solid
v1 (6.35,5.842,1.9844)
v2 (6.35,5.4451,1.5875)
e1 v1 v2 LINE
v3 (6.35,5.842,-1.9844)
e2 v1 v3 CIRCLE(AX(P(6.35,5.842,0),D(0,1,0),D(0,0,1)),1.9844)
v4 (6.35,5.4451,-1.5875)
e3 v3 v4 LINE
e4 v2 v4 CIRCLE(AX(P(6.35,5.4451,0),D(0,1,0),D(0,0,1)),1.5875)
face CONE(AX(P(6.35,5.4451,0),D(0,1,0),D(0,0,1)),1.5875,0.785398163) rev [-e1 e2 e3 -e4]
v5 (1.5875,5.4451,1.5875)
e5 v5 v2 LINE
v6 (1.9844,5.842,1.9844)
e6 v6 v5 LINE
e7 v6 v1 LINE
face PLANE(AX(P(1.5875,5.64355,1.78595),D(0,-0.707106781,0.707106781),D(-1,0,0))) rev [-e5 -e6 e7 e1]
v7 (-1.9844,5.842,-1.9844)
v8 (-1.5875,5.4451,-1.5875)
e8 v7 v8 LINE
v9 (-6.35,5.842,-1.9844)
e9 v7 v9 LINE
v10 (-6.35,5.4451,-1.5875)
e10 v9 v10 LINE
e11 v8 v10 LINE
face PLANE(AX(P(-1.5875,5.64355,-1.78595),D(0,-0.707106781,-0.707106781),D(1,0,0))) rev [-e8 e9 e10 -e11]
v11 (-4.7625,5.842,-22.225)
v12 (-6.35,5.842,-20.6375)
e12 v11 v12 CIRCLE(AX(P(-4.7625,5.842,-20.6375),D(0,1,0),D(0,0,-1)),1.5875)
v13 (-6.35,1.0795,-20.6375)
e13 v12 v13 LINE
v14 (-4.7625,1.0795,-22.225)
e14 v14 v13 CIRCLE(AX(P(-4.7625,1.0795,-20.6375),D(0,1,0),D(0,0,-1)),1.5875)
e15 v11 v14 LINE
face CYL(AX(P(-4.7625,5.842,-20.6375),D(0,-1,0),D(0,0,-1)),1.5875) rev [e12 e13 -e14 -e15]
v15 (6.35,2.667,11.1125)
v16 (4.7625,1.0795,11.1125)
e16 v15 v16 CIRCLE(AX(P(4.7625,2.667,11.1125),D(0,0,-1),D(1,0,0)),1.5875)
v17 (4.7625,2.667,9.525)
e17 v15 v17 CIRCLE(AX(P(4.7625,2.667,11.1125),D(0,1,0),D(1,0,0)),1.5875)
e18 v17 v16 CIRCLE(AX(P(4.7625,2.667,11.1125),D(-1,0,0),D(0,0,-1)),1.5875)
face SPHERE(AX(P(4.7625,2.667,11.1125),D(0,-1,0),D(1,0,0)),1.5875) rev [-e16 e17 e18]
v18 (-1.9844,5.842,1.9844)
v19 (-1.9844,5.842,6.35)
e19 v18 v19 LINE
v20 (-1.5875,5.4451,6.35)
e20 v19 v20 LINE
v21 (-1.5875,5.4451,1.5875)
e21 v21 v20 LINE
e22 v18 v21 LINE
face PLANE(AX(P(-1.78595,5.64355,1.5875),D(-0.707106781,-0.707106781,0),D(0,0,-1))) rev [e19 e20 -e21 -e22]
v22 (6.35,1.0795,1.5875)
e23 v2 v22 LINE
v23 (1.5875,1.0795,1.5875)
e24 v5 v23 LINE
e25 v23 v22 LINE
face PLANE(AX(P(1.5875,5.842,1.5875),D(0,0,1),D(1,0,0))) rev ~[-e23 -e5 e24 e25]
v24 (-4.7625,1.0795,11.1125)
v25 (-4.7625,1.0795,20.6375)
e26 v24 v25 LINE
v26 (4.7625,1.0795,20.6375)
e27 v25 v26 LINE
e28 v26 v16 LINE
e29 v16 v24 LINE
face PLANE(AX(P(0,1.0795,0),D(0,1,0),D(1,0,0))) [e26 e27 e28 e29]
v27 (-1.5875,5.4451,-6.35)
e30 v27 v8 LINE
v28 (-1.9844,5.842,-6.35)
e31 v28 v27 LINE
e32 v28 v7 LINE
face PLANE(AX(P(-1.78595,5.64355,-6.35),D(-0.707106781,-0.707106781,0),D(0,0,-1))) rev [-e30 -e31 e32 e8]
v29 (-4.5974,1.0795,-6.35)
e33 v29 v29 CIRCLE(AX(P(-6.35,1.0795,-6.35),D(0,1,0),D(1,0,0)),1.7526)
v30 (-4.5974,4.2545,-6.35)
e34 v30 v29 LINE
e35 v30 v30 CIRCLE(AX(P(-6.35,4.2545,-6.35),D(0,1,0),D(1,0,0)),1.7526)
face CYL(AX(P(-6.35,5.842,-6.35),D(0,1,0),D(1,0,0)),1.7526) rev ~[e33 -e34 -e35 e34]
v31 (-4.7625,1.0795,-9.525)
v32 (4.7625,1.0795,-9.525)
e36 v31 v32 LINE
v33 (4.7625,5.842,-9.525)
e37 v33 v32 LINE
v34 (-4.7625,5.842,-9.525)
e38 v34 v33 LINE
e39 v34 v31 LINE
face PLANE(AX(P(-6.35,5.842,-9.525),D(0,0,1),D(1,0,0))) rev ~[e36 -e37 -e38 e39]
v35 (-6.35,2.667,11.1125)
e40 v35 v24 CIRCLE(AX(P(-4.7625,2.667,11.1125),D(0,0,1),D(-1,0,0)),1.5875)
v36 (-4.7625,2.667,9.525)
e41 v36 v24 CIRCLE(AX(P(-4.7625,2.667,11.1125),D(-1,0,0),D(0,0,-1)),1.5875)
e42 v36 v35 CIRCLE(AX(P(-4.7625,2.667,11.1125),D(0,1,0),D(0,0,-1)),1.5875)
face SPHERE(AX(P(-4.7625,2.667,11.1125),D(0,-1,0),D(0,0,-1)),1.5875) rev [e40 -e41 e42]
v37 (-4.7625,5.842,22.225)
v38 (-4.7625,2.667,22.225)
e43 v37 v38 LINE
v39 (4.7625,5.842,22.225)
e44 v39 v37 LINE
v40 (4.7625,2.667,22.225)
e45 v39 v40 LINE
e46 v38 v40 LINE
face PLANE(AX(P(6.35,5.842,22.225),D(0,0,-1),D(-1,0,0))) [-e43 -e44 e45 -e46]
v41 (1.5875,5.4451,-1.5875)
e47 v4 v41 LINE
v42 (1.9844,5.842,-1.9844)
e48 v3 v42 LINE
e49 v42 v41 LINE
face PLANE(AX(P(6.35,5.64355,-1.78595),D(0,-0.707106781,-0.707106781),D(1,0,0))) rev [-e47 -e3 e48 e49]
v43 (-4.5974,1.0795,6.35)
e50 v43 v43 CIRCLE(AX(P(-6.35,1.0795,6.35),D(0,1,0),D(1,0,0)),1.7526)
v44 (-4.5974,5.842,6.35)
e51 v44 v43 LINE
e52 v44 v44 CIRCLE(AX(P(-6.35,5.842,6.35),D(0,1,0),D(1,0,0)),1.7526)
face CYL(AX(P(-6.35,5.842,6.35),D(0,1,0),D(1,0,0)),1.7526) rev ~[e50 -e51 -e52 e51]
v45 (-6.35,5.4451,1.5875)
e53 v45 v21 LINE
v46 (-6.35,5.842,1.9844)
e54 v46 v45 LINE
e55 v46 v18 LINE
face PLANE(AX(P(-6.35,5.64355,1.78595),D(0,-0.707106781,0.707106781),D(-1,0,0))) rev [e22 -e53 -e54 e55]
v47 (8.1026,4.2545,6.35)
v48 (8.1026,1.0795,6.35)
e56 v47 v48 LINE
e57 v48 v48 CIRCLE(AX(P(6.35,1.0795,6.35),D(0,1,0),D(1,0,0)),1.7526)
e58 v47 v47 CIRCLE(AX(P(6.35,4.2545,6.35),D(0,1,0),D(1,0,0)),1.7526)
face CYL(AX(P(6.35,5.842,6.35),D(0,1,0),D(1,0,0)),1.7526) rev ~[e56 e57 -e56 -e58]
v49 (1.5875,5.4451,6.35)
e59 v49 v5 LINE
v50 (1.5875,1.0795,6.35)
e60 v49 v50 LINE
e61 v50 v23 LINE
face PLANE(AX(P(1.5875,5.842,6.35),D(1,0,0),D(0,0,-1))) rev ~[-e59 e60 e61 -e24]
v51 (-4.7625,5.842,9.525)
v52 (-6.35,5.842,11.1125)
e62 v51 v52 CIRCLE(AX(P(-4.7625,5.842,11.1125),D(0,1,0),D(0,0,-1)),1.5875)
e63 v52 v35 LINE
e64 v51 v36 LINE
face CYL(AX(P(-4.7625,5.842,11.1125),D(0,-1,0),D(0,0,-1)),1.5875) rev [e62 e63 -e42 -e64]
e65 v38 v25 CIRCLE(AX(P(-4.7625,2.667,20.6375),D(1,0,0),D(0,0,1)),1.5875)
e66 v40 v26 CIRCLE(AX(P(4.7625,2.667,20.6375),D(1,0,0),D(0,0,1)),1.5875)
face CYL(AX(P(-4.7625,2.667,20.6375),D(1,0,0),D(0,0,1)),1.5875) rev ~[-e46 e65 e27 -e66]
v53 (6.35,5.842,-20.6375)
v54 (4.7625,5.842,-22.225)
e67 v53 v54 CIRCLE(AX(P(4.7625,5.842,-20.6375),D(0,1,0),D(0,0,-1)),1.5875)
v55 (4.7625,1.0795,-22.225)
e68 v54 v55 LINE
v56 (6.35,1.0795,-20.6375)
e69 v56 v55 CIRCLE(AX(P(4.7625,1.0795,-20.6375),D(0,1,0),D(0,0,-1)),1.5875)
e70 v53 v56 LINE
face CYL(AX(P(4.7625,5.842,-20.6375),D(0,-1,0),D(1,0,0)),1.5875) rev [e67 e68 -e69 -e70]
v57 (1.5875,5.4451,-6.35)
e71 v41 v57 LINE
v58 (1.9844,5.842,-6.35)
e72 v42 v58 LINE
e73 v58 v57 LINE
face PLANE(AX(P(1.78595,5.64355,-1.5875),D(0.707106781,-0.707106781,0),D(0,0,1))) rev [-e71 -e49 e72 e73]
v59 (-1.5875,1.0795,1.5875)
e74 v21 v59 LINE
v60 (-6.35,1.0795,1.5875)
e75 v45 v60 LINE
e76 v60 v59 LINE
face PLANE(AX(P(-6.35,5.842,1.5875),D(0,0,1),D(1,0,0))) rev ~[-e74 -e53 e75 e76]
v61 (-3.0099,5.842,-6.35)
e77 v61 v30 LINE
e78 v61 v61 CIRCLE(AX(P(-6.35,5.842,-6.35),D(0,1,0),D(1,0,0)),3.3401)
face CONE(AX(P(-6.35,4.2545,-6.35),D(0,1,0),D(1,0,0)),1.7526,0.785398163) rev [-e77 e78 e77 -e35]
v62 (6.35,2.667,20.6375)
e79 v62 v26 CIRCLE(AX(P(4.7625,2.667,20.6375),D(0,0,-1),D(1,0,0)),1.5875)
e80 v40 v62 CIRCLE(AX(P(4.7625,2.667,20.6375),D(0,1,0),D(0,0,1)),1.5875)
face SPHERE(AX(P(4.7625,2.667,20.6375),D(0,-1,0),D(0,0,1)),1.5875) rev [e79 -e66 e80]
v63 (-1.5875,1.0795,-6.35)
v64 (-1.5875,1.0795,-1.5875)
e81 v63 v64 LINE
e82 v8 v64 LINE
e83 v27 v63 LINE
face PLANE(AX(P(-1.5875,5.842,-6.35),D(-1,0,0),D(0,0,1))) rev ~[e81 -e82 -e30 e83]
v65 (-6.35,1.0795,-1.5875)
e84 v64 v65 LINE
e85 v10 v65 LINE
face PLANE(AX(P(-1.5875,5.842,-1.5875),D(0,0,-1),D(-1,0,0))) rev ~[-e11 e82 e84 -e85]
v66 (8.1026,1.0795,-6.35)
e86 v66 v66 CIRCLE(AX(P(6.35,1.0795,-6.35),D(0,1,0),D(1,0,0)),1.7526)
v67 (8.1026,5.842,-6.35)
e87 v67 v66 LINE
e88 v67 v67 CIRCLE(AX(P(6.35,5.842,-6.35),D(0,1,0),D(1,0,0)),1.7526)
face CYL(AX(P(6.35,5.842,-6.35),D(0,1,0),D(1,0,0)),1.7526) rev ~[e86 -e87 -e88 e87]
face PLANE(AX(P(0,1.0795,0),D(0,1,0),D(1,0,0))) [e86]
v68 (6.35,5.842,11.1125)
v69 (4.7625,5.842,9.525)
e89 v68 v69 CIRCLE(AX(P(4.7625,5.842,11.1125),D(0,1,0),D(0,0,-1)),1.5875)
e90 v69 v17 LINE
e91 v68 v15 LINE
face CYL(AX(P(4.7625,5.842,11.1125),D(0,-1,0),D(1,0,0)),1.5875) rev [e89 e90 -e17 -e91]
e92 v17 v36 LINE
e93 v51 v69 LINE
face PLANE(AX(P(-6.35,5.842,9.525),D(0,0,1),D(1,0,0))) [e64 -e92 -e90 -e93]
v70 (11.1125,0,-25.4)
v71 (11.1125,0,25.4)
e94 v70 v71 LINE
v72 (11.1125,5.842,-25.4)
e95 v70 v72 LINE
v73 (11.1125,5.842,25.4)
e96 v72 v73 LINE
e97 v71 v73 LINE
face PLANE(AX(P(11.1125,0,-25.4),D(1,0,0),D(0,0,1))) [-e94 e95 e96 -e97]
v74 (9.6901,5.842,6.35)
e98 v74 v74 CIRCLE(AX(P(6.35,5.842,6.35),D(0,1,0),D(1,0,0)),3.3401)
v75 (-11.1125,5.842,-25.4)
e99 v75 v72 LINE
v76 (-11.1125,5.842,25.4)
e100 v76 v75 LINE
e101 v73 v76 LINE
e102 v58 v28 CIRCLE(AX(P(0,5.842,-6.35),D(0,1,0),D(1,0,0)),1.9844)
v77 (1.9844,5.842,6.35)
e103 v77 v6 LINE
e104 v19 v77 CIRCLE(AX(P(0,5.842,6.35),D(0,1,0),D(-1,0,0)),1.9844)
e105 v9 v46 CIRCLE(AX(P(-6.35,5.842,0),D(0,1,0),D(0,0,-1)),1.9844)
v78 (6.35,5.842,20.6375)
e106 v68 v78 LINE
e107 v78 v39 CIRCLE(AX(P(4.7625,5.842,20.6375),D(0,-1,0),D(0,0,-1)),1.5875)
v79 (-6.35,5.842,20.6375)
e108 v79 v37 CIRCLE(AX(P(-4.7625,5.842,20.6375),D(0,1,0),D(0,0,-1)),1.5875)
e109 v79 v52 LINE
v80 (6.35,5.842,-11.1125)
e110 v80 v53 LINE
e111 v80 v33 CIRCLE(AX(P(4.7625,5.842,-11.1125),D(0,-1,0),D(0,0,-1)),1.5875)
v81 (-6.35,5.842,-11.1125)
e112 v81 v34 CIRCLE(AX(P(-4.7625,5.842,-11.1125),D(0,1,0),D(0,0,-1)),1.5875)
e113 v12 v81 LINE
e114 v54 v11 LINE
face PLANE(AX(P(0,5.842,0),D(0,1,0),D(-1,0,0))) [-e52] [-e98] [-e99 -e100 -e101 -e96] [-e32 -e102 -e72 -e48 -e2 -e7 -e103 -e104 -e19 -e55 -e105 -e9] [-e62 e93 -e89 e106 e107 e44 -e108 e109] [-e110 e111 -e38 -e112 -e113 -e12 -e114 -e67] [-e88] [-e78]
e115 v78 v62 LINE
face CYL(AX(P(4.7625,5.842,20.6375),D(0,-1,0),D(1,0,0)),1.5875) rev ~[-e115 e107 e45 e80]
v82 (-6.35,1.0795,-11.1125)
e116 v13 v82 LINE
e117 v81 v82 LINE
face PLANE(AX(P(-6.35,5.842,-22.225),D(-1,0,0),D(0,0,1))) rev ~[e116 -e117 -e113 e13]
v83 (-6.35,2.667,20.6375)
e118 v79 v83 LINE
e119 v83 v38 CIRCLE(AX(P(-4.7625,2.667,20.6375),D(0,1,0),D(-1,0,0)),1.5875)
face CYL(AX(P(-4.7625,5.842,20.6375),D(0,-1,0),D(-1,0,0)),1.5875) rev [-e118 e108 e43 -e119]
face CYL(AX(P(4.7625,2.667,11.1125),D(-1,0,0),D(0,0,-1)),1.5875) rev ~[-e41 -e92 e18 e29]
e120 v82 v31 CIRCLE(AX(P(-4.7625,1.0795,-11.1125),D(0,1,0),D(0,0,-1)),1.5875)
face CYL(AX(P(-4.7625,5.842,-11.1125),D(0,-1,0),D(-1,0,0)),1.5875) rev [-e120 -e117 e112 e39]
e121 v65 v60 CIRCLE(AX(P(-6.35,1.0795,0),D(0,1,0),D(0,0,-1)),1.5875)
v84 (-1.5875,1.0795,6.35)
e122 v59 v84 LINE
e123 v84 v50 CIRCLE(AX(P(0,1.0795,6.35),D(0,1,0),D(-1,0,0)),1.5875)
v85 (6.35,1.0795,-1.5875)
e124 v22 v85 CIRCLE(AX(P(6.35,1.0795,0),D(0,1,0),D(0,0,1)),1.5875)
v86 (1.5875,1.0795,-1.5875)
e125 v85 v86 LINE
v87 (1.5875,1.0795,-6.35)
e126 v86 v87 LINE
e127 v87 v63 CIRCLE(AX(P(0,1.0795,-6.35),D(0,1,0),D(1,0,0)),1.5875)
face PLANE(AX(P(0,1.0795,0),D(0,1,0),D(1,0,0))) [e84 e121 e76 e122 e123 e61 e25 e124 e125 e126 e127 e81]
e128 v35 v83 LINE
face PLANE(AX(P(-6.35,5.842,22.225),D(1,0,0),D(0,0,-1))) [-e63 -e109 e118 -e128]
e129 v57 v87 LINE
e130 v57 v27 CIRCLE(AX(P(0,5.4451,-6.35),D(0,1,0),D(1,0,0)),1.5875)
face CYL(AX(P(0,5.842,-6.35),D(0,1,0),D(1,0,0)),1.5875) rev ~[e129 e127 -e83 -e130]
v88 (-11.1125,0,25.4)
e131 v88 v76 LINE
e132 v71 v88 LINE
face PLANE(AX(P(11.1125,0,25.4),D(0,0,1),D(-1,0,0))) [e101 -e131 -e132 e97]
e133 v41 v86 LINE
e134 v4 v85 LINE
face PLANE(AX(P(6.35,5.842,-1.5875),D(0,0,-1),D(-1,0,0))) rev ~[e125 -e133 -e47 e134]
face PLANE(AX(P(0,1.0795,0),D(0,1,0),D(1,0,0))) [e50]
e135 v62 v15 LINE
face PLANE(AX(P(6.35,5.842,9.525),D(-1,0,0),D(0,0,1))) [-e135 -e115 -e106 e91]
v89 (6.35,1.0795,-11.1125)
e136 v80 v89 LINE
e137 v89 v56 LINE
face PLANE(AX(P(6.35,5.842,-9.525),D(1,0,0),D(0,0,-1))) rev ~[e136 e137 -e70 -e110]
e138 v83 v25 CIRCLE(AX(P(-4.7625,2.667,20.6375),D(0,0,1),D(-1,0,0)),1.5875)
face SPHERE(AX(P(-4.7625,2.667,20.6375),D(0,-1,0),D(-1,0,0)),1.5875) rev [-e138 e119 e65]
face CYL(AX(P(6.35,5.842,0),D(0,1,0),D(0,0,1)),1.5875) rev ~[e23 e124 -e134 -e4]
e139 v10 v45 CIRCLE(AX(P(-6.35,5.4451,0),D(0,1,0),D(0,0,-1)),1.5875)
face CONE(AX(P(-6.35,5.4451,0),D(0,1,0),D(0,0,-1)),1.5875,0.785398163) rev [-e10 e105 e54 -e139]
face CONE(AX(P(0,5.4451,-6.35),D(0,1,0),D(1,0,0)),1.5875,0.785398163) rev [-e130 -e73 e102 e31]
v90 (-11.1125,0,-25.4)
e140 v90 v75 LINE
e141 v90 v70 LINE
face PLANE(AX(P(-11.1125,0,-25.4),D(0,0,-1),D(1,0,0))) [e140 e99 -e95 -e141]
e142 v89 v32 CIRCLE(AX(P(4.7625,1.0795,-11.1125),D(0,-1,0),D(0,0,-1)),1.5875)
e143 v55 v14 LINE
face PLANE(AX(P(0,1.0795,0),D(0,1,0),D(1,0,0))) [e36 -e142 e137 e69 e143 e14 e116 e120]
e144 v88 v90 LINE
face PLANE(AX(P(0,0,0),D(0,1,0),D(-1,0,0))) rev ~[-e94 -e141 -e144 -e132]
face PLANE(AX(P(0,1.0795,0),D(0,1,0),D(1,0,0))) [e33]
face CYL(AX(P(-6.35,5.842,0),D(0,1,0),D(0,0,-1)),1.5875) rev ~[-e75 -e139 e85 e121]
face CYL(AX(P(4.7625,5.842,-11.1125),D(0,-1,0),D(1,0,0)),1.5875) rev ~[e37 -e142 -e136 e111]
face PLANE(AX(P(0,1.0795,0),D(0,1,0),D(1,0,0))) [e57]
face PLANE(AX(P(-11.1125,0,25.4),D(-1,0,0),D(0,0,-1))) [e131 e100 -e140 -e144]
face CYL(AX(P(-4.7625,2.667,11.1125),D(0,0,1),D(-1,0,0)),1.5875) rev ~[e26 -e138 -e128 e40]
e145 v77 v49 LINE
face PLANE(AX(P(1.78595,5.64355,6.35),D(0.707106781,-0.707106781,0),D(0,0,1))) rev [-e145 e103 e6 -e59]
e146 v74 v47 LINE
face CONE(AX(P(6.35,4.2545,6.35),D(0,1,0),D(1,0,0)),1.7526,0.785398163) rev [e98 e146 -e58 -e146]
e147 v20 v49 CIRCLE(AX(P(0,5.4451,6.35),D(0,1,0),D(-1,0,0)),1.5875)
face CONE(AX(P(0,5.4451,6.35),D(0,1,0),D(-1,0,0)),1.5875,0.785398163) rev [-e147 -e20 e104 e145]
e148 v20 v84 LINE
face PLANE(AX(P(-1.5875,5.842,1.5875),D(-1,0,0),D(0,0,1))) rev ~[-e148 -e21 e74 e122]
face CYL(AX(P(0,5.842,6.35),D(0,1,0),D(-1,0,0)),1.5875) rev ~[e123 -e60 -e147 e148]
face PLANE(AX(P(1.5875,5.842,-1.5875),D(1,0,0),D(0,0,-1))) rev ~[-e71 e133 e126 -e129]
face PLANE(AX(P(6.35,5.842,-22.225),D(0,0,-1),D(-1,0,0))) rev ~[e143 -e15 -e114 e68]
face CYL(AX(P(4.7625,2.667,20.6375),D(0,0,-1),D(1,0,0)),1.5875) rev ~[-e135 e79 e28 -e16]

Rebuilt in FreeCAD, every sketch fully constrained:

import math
import FreeCAD as App
import Part
import Sketcher

V = App.Vector
Q = App.Units.Quantity


def edges_at(feature, points):
    """Names of the edges that pass closest to the given points."""
    edges = feature.Shape.Edges
    near = lambda p: min(range(len(edges)), key=lambda i: edges[i].distToShape(Part.Vertex(*p))[0])
    return sorted({f"Edge{near(p) + 1}" for p in points})


def add_polygon(sketch, points):
    """Adds a closed chain of lines whose ends are joined by coincident constraints."""
    first, n = sketch.GeometryCount, len(points)
    for a, b in zip(points, points[1:] + points[:1]):
        sketch.addGeometry(Part.LineSegment(App.Vector(*a, 0), App.Vector(*b, 0)), False)
    for i in range(n):
        sketch.addConstraint(Sketcher.Constraint("Coincident", first + i, 2, first + (i + 1) % n, 1))

doc = App.newDocument("Part")
params = doc.addObject("Spreadsheet::Sheet", "Params")
for row, (alias, value) in enumerate([
    ("sketch1_height", "2 in"),
    ("sketch1_width", "0.875 in"),
    ("pad1_length", "0.23 in"),
    ("sketch2_diameter", "0.138 in"),
    ("sketch2_width", "0.5 in"),
    ("sketch2_radius", "0.0625 in"),
    ("pocket1_length", "0.1875 in"),
    ("fillet_radius", "0.0625 in"),
    ("chamfer_size", "0.0625 in"),
    ("chamfer2_size", "0.015626 in"),
    ("fillet2_radius", "0.0625 in"),
], start=1):
    params.set(f"A{row}", alias)
    params.set(f"B{row}", "=" + value)
    params.setAlias(f"B{row}", alias)

body = doc.addObject("PartDesign::Body", "Body")

sketch1 = body.newObject("Sketcher::SketchObject", "Sketch")
sketch1.AttachmentSupport = (doc.getObject("XZ_Plane"), [""])
sketch1.MapMode = "FlatFace"
add_polygon(sketch1, [(-11.1125, 25.4), (11.1125, 25.4), (11.1125, -25.4), (-11.1125, -25.4)])
sketch1.addConstraint([
    Sketcher.Constraint("Horizontal", 0),
    Sketcher.Constraint("Vertical", 1),
    Sketcher.Constraint("Horizontal", 2),
    Sketcher.Constraint("Vertical", 3),
    Sketcher.Constraint("Symmetric", 0, 2, 2, 2, -1, 1),
    Sketcher.Constraint("DistanceY", 1, 2, 1, 1, Q("2 in")),
    Sketcher.Constraint("DistanceX", 0, 1, 0, 2, Q("0.875 in")),
])
sketch1.setExpression("Constraints[9]", "Params.sketch1_height")
sketch1.setExpression("Constraints[10]", "Params.sketch1_width")
pad1 = body.newObject("PartDesign::Pad", "Pad")
pad1.Profile = sketch1
pad1.setExpression("Length", "Params.pad1_length")
pad1.Reversed = True

sketch2 = body.newObject("Sketcher::SketchObject", "Sketch001")
sketch2.AttachmentSupport = (doc.getObject("XZ_Plane"), [""])
sketch2.MapMode = "FlatFace"
sketch2.AttachmentOffset = App.Placement(V(0, 0, -0.23 * 25.4), App.Rotation())
sketch2.addGeometry(Part.ArcOfCircle(Part.Circle(V(6.35, 0, 0), V(0, 0, 1), 1.5875), math.radians(-90), math.radians(90)), False)
sketch2.addGeometry(Part.LineSegment(V(6.35, -1.5875, 0), V(1.5875, -1.5875, 0)), False)
sketch2.addGeometry(Part.LineSegment(V(1.5875, -1.5875, 0), V(1.5875, -6.35, 0)), False)
sketch2.addGeometry(Part.ArcOfCircle(Part.Circle(V(0, -6.35, 0), V(0, 0, 1), 1.5875), math.radians(180), math.radians(360)), False)
sketch2.addGeometry(Part.LineSegment(V(-1.5875, -6.35, 0), V(-1.5875, -1.5875, 0)), False)
sketch2.addGeometry(Part.LineSegment(V(-1.5875, -1.5875, 0), V(-6.35, -1.5875, 0)), False)
sketch2.addGeometry(Part.ArcOfCircle(Part.Circle(V(-6.35, 0, 0), V(0, 0, 1), 1.5875), math.radians(90), math.radians(270)), False)
sketch2.addGeometry(Part.LineSegment(V(-6.35, 1.5875, 0), V(-1.5875, 1.5875, 0)), False)
sketch2.addGeometry(Part.LineSegment(V(-1.5875, 1.5875, 0), V(-1.5875, 6.35, 0)), False)
sketch2.addGeometry(Part.ArcOfCircle(Part.Circle(V(0, 6.35, 0), V(0, 0, 1), 1.5875), math.radians(0), math.radians(180)), False)
sketch2.addGeometry(Part.LineSegment(V(1.5875, 6.35, 0), V(1.5875, 1.5875, 0)), False)
sketch2.addGeometry(Part.LineSegment(V(1.5875, 1.5875, 0), V(6.35, 1.5875, 0)), False)
add_polygon(sketch2, [(-6.35, 22.225), (6.35, 22.225), (6.35, 9.525), (-6.35, 9.525)])
add_polygon(sketch2, [(6.35, -9.525), (6.35, -22.225), (-6.35, -22.225), (-6.35, -9.525)])
sketch2.addGeometry(Part.Circle(V(-6.35, 6.35, 0), V(0, 0, 1), 1.7526), False)
sketch2.addGeometry(Part.Circle(V(-6.35, -6.35, 0), V(0, 0, 1), 1.7526), False)
sketch2.addGeometry(Part.Circle(V(6.35, 6.35, 0), V(0, 0, 1), 1.7526), False)
sketch2.addGeometry(Part.Circle(V(6.35, -6.35, 0), V(0, 0, 1), 1.7526), False)
sketch2.addConstraint([
    Sketcher.Constraint("Tangent", 0, 1, 1, 1),
    Sketcher.Constraint("Coincident", 1, 2, 2, 1),
    Sketcher.Constraint("Tangent", 2, 2, 3, 2),
    Sketcher.Constraint("Tangent", 3, 1, 4, 1),
    Sketcher.Constraint("Coincident", 4, 2, 5, 1),
    Sketcher.Constraint("Tangent", 5, 2, 6, 2),
    Sketcher.Constraint("Tangent", 6, 1, 7, 1),
    Sketcher.Constraint("Coincident", 7, 2, 8, 1),
    Sketcher.Constraint("Tangent", 8, 2, 9, 2),
    Sketcher.Constraint("Tangent", 9, 1, 10, 1),
    Sketcher.Constraint("Coincident", 10, 2, 11, 1),
    Sketcher.Constraint("Tangent", 11, 2, 0, 2),
    Sketcher.Constraint("Horizontal", 1),
    Sketcher.Constraint("Vertical", 2),
    Sketcher.Constraint("Vertical", 4),
    Sketcher.Constraint("Horizontal", 5),
    Sketcher.Constraint("Horizontal", 7),
    Sketcher.Constraint("Vertical", 8),
    Sketcher.Constraint("Vertical", 10),
    Sketcher.Constraint("Horizontal", 11),
    Sketcher.Constraint("Horizontal", 12),
    Sketcher.Constraint("Vertical", 13),
    Sketcher.Constraint("Horizontal", 14),
    Sketcher.Constraint("Vertical", 15),
    Sketcher.Constraint("Vertical", 16),
    Sketcher.Constraint("Horizontal", 17),
    Sketcher.Constraint("Vertical", 18),
    Sketcher.Constraint("Horizontal", 19),
    Sketcher.Constraint("Equal", 0, 3),
    Sketcher.Constraint("Equal", 3, 6),
    Sketcher.Constraint("Equal", 6, 9),
    Sketcher.Constraint("Equal", 20, 21),
    Sketcher.Constraint("Equal", 21, 22),
    Sketcher.Constraint("Equal", 22, 23),
    Sketcher.Constraint("Symmetric", 0, 3, 6, 3, -1, 1),
    Sketcher.Constraint("Symmetric", 3, 3, 9, 3, -1, 1),
    Sketcher.Constraint("Symmetric", 21, 3, 22, 3, -1, 1),
    Sketcher.Constraint("Symmetric", 20, 3, 23, 3, -1, 1),
    Sketcher.Constraint("Symmetric", 15, 2, 16, 2, -1, 1),
    Sketcher.Constraint("Symmetric", 13, 2, 18, 2, -1, 1),
    Sketcher.Constraint("Symmetric", 20, 3, 22, 3, -2),
    Sketcher.Constraint("Symmetric", 1, 2, 4, 2, -2),
    Sketcher.Constraint("Horizontal", 9, 3, 20, 3),
    Sketcher.Constraint("Vertical", 6, 3, 20, 3),
    Sketcher.Constraint("Vertical", 11, 2, 12, 2),
    Sketcher.Constraint("Vertical", 6, 1, 14, 2),
    Sketcher.Constraint("Equal", 11, 2),
    Sketcher.Constraint("Equal", 19, 13),
    Sketcher.Constraint("Diameter", 20, Q("0.138 in")),
    Sketcher.Constraint("DistanceX", 12, 1, 12, 2, Q("0.5 in")),
    Sketcher.Constraint("Radius", 0, Q("0.0625 in")),
    Sketcher.Constraint("DistanceY", -1, 1, 13, 2, Q("0.375 in")),
])
sketch2.setExpression("Constraints[56]", "Params.sketch2_diameter")
sketch2.setExpression("Constraints[57]", "Params.sketch2_width")
sketch2.setExpression("Constraints[58]", "Params.sketch2_radius")
pocket1 = body.newObject("PartDesign::Pocket", "Pocket")
pocket1.Profile = sketch2
pocket1.setExpression("Length", "Params.pocket1_length")
pocket1.Reversed = True
doc.recompute()

fillet = body.newObject("PartDesign::Fillet", "Fillet")
fillet.Base = (pocket1, edges_at(pocket1, [
    (-6.35, 3.461, 22.225),
    (-6.35, 3.461, 9.525),
    (6.35, 3.461, 22.225),
    (6.35, 3.461, 9.525),
    (-6.35, 3.461, -9.525),
    (-6.35, 3.461, -22.225),
    (6.35, 3.461, -22.225),
    (6.35, 3.461, -9.525),
]))
fillet.setExpression("Radius", "Params.fillet_radius")
doc.recompute()

chamfer = body.newObject("PartDesign::Chamfer", "Chamfer")
chamfer.Base = (fillet, edges_at(fillet, [(4.597, 5.842, 6.35), (-8.103, 5.842, -6.35)]))
chamfer.setExpression("Size", "Params.chamfer_size")
doc.recompute()

chamfer2 = body.newObject("PartDesign::Chamfer", "Chamfer001")
chamfer2.Base = (chamfer, edges_at(chamfer, [
    (-1.587, 5.842, -3.969),
    (0, 5.842, -7.938),
    (1.587, 5.842, -3.969),
    (-3.969, 5.842, -1.587),
    (-7.938, 5.842, 0),
    (-3.969, 5.842, 1.587),
    (-1.587, 5.842, 3.969),
    (0, 5.842, 7.938),
    (1.587, 5.842, 3.969),
    (3.969, 5.842, -1.587),
    (7.938, 5.842, 0),
    (3.969, 5.842, 1.587),
]))
chamfer2.setExpression("Size", "Params.chamfer2_size")
doc.recompute()

fillet2 = body.newObject("PartDesign::Fillet", "Fillet001")
fillet2.Base = (chamfer2, edges_at(chamfer2, [
    (-5.885, 1.079, 21.76),
    (-6.35, 1.079, 15.875),
    (-5.885, 1.079, 9.99),
    (0, 1.079, 9.525),
    (5.885, 1.079, 9.99),
    (6.35, 1.079, 15.875),
    (5.885, 1.079, 21.76),
    (0, 1.079, 22.225),
]))
fillet2.setExpression("Radius", "Params.fillet2_radius")

doc.recompute()
